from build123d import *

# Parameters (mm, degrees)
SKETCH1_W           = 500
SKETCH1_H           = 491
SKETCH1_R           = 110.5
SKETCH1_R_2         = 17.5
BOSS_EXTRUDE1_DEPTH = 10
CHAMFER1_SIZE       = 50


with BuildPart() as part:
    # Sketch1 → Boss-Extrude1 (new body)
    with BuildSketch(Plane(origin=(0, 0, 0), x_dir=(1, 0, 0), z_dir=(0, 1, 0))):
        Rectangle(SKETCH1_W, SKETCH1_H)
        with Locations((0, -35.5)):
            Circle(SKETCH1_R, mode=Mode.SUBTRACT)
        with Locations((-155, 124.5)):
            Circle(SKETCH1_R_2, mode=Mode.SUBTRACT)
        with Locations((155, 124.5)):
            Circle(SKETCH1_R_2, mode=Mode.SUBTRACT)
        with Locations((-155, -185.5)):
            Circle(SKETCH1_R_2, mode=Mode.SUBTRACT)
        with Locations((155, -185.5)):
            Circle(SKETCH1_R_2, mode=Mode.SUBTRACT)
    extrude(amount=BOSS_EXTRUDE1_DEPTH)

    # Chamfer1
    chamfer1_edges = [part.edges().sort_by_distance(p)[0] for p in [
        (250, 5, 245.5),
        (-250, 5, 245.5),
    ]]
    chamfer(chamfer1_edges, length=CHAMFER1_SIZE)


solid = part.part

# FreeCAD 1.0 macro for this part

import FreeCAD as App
import Part
import Sketcher


def edges_at(feature, points):
    """Names of the edges that pass closest to the given points."""
    edges = feature.Shape.Edges
    near = lambda p: min(range(len(edges)), key=lambda i: edges[i].distToShape(Part.Vertex(*p))[0])
    return sorted({f"Edge{near(p) + 1}" for p in points})

doc = App.newDocument("Part")
params = doc.addObject("Spreadsheet::Sheet", "Params")
for row, (alias, value) in enumerate([
    ("sketch1_diameter", "35 mm"),
    ("sketch1_diameter2", "221 mm"),
    ("sketch1_width", "500 mm"),
    ("sketch1_height", "491 mm"),
    ("pad1_length", "10 mm"),
    ("chamfer_size", "50 mm"),
], start=1):
    params.set(f"A{row}", alias)
    params.set(f"B{row}", "=" + value)
    params.setAlias(f"B{row}", alias)

body = doc.addObject("PartDesign::Body", "Body")

# Sketch on XZ plane
sketch1 = body.newObject("Sketcher::SketchObject", "Sketch")
sketch1.AttachmentSupport = (doc.getObject("XZ_Plane"), [""])
sketch1.MapMode = "FlatFace"
sketch1.addGeometry([
    Part.LineSegment(App.Vector(-250, -246, 0), App.Vector(-250, 246, 0)),  # 0
    Part.LineSegment(App.Vector(-250, 246, 0), App.Vector(250, 246, 0)),  # 1
    Part.LineSegment(App.Vector(250, 246, 0), App.Vector(250, -246, 0)),  # 2
    Part.LineSegment(App.Vector(250, -246, 0), App.Vector(-250, -246, 0)),  # 3
    Part.Circle(App.Vector(-155, 186, 0), App.Vector(0, 0, 1), 18),  # 4
    Part.Circle(App.Vector(155, 186, 0), App.Vector(0, 0, 1), 18),  # 5
    Part.Circle(App.Vector(0, 36, 0), App.Vector(0, 0, 1), 110),  # 6
    Part.Circle(App.Vector(-155, -124, 0), App.Vector(0, 0, 1), 18),  # 7
    Part.Circle(App.Vector(155, -124, 0), App.Vector(0, 0, 1), 18),  # 8
], False)
sketch1.addConstraint([
    Sketcher.Constraint("Coincident", 0, 2, 1, 1),
    Sketcher.Constraint("Coincident", 1, 2, 2, 1),
    Sketcher.Constraint("Coincident", 2, 2, 3, 1),
    Sketcher.Constraint("Coincident", 3, 2, 0, 1),
    Sketcher.Constraint("Vertical", 0),
    Sketcher.Constraint("Horizontal", 1),
    Sketcher.Constraint("Vertical", 2),
    Sketcher.Constraint("Horizontal", 3),
    Sketcher.Constraint("Equal", 4, 5),
    Sketcher.Constraint("Equal", 5, 7),
    Sketcher.Constraint("Equal", 7, 8),
    Sketcher.Constraint("Symmetric", 0, 2, 2, 2, -1, 1),
    Sketcher.Constraint("Symmetric", 4, 3, 5, 3, -2),
    Sketcher.Constraint("Symmetric", 7, 3, 8, 3, -2),
    Sketcher.Constraint("PointOnObject", 6, 3, -2),
    Sketcher.Constraint("Vertical", 4, 3, 7, 3),
    Sketcher.Constraint("Diameter", 4, 35.0),
    Sketcher.Constraint("Diameter", 6, 221.0),
    Sketcher.Constraint("DistanceX", 1, 1, 1, 2, 500.0),
    Sketcher.Constraint("DistanceY", 0, 1, 0, 2, 491.0),
    Sketcher.Constraint("DistanceX", 4, 3, -1, 1, 155.0),
    Sketcher.Constraint("DistanceY", 6, 3, 4, 3, 150.0),
    Sketcher.Constraint("DistanceY", 7, 3, 6, 3, 160.0),
    Sketcher.Constraint("DistanceY", 4, 3, 0, 2, 60.0),
])
sketch1.setExpression("Constraints[16]", "Params.sketch1_diameter")
sketch1.setExpression("Constraints[17]", "Params.sketch1_diameter2")
sketch1.setExpression("Constraints[18]", "Params.sketch1_width")
sketch1.setExpression("Constraints[19]", "Params.sketch1_height")
pad1 = body.newObject("PartDesign::Pad", "Pad")
pad1.Profile = sketch1
pad1.setExpression("Length", "Params.pad1_length")
pad1.Reversed = True
doc.recompute()

chamfer = body.newObject("PartDesign::Chamfer", "Chamfer")
chamfer.Base = (pad1, edges_at(pad1, [(250, 5, 245.5), (-250, 5, 245.5)]))
chamfer.setExpression("Size", "Params.chamfer_size")

doc.recompute()
